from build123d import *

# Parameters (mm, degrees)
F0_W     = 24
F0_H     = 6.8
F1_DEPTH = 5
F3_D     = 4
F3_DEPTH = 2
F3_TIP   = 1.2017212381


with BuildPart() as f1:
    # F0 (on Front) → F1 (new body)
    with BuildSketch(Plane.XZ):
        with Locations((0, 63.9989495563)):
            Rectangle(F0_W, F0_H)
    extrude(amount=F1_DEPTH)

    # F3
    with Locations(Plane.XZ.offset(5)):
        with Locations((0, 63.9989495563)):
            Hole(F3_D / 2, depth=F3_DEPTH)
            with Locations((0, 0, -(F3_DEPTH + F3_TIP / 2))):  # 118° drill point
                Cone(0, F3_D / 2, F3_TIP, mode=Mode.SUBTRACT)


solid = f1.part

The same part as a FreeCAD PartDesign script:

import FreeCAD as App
import Part
import Sketcher
from FreeCAD import Vector
Q = App.Units.Quantity

doc = App.newDocument("Part")
body = doc.addObject("PartDesign::Body", "Body")

# Sketch on XZ plane
sketch1 = body.newObject("Sketcher::SketchObject", "Sketch")
sketch1.AttachmentSupport = (doc.getObject("XZ_Plane"), [""])
sketch1.MapMode = "FlatFace"
sketch1.addGeometry(Part.LineSegment(Vector(-12, 67.39895, 0), Vector(-12, 60.59895, 0)), False)
sketch1.addGeometry(Part.LineSegment(Vector(-12, 60.59895, 0), Vector(12, 60.59895, 0)), False)
sketch1.addGeometry(Part.LineSegment(Vector(12, 60.59895, 0), Vector(12, 67.39895, 0)), False)
sketch1.addGeometry(Part.LineSegment(Vector(12, 67.39895, 0), Vector(-12, 67.39895, 0)), False)
sketch1.addConstraint(Sketcher.Constraint("Coincident", 0, 2, 1, 1))
sketch1.addConstraint(Sketcher.Constraint("Coincident", 1, 2, 2, 1))
sketch1.addConstraint(Sketcher.Constraint("Coincident", 2, 2, 3, 1))
sketch1.addConstraint(Sketcher.Constraint("Coincident", 3, 2, 0, 1))
sketch1.addConstraint(Sketcher.Constraint("Vertical", 0))
sketch1.addConstraint(Sketcher.Constraint("Horizontal", 1))
sketch1.addConstraint(Sketcher.Constraint("Vertical", 2))
sketch1.addConstraint(Sketcher.Constraint("Horizontal", 3))
sketch1.addConstraint(Sketcher.Constraint("DistanceX", 1, 1, 1, 2, Q("24 mm")))
sketch1.addConstraint(Sketcher.Constraint("DistanceY", 0, 2, 0, 1, Q("6.8 mm")))
sketch1.addConstraint(Sketcher.Constraint("DistanceX", 0, 2, -1, 1, Q("12 mm")))
sketch1.addConstraint(Sketcher.Constraint("DistanceY", -1, 1, 0, 2, Q("60.59895 mm")))
pad1 = body.newObject("PartDesign::Pad", "Pad")
pad1.Profile = sketch1
pad1.Length = 5

# Sketch on XZ plane
sketch2 = body.newObject("Sketcher::SketchObject", "Sketch001")
sketch2.AttachmentSupport = (doc.getObject("XZ_Plane"), [""])
sketch2.MapMode = "FlatFace"
sketch2.AttachmentOffset = App.Placement(Vector(0, 0, 5), App.Rotation())
sketch2.addGeometry(Part.Circle(Vector(0, 63.99895, 0), Vector(0, 0, 1), 2), False)
sketch2.addConstraint(Sketcher.Constraint("PointOnObject", 0, 3, -2))
sketch2.addConstraint(Sketcher.Constraint("Diameter", 0, Q("4 mm")))
sketch2.addConstraint(Sketcher.Constraint("DistanceY", -1, 1, 0, 3, Q("63.99895 mm")))
doc.recompute()
hole = body.newObject("PartDesign::Hole", "Hole")
hole.Profile = sketch2
hole.ThreadType = "None"
hole.Diameter = 4
hole.DepthType = "Dimension"
hole.Depth = 2
hole.DrillPoint = "Angled"
hole.DrillPointAngle = 118

doc.recompute()
